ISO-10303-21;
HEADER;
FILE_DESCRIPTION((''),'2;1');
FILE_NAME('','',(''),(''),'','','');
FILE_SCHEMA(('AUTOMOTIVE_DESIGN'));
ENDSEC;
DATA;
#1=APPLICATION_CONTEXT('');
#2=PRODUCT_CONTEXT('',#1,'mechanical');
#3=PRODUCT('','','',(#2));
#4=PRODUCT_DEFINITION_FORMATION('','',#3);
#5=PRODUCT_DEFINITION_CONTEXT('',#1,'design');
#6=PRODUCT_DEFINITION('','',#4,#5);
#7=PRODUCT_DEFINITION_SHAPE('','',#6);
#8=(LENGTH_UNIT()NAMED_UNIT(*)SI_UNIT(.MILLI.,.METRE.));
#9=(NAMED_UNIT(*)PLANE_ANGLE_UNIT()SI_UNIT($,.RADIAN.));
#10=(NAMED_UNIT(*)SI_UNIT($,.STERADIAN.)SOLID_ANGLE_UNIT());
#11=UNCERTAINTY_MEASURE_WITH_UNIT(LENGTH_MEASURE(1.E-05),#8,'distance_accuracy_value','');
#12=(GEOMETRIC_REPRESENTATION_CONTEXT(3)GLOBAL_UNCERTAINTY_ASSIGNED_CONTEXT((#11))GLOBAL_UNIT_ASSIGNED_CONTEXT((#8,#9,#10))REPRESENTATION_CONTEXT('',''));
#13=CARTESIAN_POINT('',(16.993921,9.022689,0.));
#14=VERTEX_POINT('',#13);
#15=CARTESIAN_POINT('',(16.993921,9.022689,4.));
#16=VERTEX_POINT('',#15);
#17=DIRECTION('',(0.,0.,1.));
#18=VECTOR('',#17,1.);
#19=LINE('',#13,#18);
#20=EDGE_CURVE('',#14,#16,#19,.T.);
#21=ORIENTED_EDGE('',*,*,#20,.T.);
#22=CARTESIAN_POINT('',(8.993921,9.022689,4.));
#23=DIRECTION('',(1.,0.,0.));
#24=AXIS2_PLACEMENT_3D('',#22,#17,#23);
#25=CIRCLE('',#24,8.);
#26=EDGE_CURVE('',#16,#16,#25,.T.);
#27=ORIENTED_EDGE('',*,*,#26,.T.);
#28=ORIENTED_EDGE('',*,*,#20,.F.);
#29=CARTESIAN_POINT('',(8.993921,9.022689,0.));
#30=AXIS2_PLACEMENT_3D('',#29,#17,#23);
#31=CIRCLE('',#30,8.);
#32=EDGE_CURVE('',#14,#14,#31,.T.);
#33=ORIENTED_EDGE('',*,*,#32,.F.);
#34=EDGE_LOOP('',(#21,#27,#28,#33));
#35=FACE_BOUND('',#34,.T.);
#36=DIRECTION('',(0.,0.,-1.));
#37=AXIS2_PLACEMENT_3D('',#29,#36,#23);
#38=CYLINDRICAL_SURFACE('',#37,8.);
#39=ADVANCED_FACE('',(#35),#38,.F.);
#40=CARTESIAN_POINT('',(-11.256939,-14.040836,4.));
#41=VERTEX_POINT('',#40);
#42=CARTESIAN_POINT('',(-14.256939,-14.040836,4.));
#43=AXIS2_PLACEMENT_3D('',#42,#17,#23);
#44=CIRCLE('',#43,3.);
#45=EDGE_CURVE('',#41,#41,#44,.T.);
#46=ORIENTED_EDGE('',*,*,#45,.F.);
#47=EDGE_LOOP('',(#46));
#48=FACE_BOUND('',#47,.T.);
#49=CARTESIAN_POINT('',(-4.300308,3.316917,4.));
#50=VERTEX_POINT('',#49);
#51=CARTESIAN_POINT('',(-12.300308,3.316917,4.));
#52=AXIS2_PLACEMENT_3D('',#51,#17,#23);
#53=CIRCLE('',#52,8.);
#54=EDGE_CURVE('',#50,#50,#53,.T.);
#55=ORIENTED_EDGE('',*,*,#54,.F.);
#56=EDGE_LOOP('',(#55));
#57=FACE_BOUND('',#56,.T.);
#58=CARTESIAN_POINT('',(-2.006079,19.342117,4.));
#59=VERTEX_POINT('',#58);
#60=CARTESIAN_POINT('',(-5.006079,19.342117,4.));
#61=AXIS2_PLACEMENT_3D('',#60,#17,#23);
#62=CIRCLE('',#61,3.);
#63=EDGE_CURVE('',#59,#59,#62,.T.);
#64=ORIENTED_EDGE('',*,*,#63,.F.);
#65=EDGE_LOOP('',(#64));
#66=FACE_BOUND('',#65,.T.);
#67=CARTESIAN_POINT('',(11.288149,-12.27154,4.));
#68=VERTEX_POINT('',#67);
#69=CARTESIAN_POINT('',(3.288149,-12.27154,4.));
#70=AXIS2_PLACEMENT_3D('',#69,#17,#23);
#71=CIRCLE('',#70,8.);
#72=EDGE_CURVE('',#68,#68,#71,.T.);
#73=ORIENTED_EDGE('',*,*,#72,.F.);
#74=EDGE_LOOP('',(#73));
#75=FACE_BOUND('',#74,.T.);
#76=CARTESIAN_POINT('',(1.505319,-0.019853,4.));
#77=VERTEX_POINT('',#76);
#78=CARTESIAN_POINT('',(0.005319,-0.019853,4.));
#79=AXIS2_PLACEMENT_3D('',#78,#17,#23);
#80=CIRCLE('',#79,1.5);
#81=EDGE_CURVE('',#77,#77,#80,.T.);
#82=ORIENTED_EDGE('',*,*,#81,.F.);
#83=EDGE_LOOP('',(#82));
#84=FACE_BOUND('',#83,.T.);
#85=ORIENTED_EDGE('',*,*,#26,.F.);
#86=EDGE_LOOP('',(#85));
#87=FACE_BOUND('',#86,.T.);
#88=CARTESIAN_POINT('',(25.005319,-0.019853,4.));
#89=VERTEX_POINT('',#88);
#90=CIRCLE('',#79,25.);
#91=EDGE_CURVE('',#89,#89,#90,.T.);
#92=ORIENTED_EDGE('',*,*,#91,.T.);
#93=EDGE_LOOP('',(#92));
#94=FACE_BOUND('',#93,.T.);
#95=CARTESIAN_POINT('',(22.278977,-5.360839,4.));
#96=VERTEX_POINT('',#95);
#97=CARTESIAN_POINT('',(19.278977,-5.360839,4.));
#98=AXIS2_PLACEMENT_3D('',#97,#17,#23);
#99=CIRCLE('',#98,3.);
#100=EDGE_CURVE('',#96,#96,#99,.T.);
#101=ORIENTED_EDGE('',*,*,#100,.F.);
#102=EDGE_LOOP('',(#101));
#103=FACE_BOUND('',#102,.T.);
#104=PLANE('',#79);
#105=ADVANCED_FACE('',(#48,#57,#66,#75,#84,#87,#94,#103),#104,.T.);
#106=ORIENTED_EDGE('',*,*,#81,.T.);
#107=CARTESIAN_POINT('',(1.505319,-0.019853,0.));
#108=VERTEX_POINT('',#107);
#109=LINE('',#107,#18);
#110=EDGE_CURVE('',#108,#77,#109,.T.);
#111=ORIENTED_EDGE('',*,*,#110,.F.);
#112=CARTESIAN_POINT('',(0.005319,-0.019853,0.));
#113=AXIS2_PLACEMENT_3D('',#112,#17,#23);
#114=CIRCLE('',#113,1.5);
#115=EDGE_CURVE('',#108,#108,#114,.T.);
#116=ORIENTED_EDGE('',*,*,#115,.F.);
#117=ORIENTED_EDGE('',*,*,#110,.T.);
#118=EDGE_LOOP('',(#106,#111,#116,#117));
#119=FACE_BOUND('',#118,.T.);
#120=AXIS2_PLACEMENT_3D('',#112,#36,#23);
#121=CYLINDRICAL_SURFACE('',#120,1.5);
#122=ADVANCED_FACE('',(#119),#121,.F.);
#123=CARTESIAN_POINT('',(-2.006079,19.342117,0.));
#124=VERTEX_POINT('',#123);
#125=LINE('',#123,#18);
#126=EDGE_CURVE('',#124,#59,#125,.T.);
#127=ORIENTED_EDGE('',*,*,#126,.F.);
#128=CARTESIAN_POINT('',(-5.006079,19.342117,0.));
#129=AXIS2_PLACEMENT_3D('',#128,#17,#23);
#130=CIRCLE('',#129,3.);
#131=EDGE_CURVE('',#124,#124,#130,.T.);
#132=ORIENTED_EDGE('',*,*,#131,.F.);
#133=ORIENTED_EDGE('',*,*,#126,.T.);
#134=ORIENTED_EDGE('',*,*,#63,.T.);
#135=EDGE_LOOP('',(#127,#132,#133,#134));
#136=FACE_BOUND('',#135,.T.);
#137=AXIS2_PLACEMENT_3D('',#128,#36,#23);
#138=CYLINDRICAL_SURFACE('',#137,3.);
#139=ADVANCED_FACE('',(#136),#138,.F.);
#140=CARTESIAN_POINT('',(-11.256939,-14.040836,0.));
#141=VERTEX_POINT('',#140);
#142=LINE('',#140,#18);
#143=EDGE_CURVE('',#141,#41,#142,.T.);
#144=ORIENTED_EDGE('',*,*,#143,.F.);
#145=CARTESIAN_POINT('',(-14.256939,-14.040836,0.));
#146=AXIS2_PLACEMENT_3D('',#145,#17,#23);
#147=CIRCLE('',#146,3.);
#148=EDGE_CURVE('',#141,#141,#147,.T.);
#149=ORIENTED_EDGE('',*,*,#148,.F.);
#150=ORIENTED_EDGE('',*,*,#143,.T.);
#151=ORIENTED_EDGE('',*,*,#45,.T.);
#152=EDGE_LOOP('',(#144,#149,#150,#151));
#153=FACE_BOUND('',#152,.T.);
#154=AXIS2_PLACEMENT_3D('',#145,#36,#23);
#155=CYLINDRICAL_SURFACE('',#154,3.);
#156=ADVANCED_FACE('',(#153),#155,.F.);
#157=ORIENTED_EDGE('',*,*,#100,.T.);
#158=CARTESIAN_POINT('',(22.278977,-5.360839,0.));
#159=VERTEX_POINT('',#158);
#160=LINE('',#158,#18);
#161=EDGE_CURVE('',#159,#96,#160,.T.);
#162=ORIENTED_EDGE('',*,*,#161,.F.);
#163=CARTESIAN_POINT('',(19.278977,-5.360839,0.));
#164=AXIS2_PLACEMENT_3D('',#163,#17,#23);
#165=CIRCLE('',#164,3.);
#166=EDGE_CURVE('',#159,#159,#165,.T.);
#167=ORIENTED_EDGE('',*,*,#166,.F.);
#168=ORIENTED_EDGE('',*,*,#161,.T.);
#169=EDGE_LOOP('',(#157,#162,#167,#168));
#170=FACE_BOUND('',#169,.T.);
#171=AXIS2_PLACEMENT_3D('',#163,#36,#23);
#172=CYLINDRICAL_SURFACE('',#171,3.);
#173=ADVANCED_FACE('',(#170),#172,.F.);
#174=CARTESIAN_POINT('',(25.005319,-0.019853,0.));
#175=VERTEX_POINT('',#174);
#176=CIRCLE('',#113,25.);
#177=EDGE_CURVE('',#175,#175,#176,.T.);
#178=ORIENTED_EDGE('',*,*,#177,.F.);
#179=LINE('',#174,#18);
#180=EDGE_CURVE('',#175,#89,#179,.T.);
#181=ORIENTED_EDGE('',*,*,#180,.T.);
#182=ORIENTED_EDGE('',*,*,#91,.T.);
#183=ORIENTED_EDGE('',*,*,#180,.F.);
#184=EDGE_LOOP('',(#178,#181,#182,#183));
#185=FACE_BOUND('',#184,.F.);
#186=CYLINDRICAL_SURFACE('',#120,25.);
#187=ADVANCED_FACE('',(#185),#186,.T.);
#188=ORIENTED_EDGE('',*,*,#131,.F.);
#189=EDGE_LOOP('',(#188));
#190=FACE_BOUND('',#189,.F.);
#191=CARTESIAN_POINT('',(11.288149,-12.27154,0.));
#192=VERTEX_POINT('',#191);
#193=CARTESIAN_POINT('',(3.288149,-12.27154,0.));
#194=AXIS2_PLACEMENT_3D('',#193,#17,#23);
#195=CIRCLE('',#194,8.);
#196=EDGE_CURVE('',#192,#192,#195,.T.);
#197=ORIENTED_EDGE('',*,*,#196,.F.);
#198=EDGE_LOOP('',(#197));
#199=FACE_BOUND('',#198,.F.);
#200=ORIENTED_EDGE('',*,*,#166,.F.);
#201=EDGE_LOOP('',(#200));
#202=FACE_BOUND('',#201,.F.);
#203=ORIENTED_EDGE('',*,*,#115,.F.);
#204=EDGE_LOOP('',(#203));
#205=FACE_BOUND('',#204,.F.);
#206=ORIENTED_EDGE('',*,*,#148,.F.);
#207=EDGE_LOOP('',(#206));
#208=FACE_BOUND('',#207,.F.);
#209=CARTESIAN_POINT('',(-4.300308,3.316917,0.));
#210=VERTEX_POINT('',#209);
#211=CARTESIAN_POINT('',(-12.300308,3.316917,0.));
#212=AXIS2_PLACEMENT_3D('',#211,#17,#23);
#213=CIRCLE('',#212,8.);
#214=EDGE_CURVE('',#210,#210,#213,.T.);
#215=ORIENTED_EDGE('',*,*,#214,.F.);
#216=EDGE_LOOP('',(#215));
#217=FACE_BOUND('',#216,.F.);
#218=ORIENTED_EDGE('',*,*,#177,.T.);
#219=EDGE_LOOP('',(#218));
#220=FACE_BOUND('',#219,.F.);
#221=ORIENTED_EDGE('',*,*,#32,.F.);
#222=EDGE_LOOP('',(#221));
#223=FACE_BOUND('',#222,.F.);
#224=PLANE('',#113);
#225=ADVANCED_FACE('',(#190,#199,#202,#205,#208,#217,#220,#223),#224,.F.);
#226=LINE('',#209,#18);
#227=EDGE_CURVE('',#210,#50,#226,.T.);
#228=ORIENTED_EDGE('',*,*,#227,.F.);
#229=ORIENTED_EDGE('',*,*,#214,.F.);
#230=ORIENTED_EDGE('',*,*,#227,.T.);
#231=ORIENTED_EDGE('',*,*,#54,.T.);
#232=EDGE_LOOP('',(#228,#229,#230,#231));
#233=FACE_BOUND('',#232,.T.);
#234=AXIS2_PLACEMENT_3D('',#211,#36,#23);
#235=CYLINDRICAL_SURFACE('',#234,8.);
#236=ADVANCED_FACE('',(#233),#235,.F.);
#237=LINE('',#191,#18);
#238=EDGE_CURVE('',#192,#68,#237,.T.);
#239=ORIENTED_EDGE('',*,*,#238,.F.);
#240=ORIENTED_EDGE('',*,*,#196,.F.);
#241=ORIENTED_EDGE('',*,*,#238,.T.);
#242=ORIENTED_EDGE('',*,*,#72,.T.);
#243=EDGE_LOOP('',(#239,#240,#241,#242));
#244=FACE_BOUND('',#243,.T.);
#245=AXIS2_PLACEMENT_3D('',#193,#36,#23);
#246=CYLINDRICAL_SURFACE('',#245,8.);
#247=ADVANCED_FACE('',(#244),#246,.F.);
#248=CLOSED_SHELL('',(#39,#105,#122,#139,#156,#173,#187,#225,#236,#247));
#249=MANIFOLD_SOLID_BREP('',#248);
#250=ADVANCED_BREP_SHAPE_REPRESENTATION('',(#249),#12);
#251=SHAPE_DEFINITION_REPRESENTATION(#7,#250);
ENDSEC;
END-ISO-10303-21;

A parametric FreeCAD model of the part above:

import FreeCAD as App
import Part
import Sketcher
from FreeCAD import Vector
Q = App.Units.Quantity

doc = App.newDocument("Part")
body = doc.addObject("PartDesign::Body", "Body")

# Sketch on XY plane
sketch1 = body.newObject("Sketcher::SketchObject", "Sketch")
sketch1.AttachmentSupport = (doc.getObject("XY_Plane"), [""])
sketch1.MapMode = "FlatFace"
sketch1.addGeometry([
    Part.Circle(Vector(0, 0, 0), Vector(0, 0, 1), 25),  # 0
    Part.Circle(Vector(-14.3, -14, 0), Vector(0, 0, 1), 3),  # 1
    Part.Circle(Vector(0, 0, 0), Vector(0, 0, 1), 1.5),  # 2
    Part.Circle(Vector(3.3, -12.3, 0), Vector(0, 0, 1), 8),  # 3
    Part.Circle(Vector(19.3, -5.4, 0), Vector(0, 0, 1), 3),  # 4
    Part.Circle(Vector(-12.3, 3.3, 0), Vector(0, 0, 1), 8),  # 5
    Part.Circle(Vector(-5, 19.3, 0), Vector(0, 0, 1), 3),  # 6
    Part.Circle(Vector(9, 9, 0), Vector(0, 0, 1), 8),  # 7
], False)
sketch1.addConstraint([
    Sketcher.Constraint("Coincident", 2, 3, 0, 3),
    Sketcher.Constraint("Equal", 1, 4),
    Sketcher.Constraint("Equal", 3, 5),
    Sketcher.Constraint("Equal", 4, 6),
    Sketcher.Constraint("Equal", 5, 7),
    Sketcher.Constraint("Diameter", 0, Q("50 mm")),
    Sketcher.Constraint("Diameter", 1, Q("6 mm")),
    Sketcher.Constraint("Diameter", 2, Q("3 mm")),
    Sketcher.Constraint("Diameter", 3, Q("16 mm")),
    Sketcher.Constraint("DistanceX", 6, 3, 7, 3, Q("14 mm")),
    Sketcher.Constraint("DistanceY", 3, 3, 4, 3, Q("6.910701 mm")),
    Sketcher.Constraint("DistanceY", 5, 3, 6, 3, Q("16.0252 mm")),
    Sketcher.Constraint("DistanceX", -1, 1, 0, 3, Q("0.005319 mm")),
    Sketcher.Constraint("DistanceX", 1, 3, -1, 1, Q("14.256939 mm")),
    Sketcher.Constraint("DistanceX", -1, 1, 3, 3, Q("3.288149 mm")),
    Sketcher.Constraint("DistanceY", 3, 3, -1, 1, Q("12.27154 mm")),
    Sketcher.Constraint("DistanceX", 6, 3, -1, 1, Q("5.006079 mm")),
    Sketcher.Constraint("DistanceY", -1, 1, 7, 3, Q("9.022689 mm")),
    Sketcher.Constraint("DistanceX", 0, 3, 4, 3, Q("19.273658 mm")),
    Sketcher.Constraint("DistanceY", 0, 3, 5, 3, Q("3.33677 mm")),
    Sketcher.Constraint("DistanceX", 1, 3, 5, 3, Q("1.956631 mm")),
    Sketcher.Constraint("DistanceY", 0, 3, 7, 3, Q("9.042542 mm")),
    Sketcher.Constraint("DistanceY", 1, 3, -1, 1, Q("14.040836 mm")),
])
pad1 = body.newObject("PartDesign::Pad", "Pad")
pad1.Profile = sketch1
pad1.Length = 4

doc.recompute()
